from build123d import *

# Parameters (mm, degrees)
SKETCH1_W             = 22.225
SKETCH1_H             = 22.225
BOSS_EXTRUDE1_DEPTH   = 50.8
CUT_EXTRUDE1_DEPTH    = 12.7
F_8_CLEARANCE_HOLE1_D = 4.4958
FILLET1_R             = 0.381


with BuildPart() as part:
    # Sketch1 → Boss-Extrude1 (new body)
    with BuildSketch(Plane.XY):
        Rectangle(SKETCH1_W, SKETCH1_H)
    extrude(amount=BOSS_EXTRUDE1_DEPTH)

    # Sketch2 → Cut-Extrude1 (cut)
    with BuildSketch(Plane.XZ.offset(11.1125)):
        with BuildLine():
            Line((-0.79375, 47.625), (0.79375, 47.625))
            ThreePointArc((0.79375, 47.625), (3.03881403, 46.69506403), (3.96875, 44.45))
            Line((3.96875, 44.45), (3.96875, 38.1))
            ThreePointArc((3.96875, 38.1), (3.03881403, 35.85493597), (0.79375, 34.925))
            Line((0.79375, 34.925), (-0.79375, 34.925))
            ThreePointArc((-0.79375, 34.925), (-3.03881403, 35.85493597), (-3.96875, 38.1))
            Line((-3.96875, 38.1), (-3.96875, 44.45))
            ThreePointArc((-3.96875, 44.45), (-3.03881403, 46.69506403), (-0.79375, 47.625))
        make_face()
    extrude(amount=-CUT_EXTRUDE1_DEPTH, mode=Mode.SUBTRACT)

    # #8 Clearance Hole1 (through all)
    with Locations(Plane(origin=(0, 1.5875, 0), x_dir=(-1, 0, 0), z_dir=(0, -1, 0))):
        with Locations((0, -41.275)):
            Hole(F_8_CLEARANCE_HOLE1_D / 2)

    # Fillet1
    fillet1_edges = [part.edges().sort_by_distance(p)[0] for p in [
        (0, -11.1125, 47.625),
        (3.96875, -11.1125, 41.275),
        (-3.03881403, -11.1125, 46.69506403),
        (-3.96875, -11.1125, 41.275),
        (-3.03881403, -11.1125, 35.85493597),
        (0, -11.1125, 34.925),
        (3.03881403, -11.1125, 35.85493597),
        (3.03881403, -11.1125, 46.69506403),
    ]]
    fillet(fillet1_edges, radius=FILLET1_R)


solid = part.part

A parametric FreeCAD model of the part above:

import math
import FreeCAD as App
import Part
import Sketcher
from FreeCAD import Vector
Q = App.Units.Quantity


def edges_at(feature, points):
    """Names of the edges that pass closest to the given points."""
    edges = feature.Shape.Edges
    near = lambda p: min(range(len(edges)), key=lambda i: edges[i].distToShape(Part.Vertex(*p))[0])
    return sorted({f"Edge{near(p) + 1}" for p in points})

doc = App.newDocument("Part")
params = doc.addObject("Spreadsheet::Sheet", "Params")
for row, (alias, value) in enumerate([
    ("sketch1_width", "0.875 in"),
    ("pad1_length", "2 in"),
    ("sketch2_radius", "0.125 in"),
    ("sketch2_height", "0.25 in"),
    ("sketch2_width", "0.0625 in"),
    ("pocket1_length", "0.5 in"),
    ("sketch3_diameter", "0.177 in"),
    ("hole_diameter", "0.177 in"),
    ("fillet_radius", "0.015 in"),
], start=1):
    params.set(f"A{row}", alias)
    params.set(f"B{row}", "=" + value)
    params.setAlias(f"B{row}", alias)

body = doc.addObject("PartDesign::Body", "Body")

# Sketch on XY plane
sketch1 = body.newObject("Sketcher::SketchObject", "Sketch")
sketch1.AttachmentSupport = (doc.getObject("XY_Plane"), [""])
sketch1.MapMode = "FlatFace"
sketch1.addGeometry(Part.LineSegment(Vector(-11.1125, 11.1125, 0), Vector(-11.1125, -11.1125, 0)), False)
sketch1.addGeometry(Part.LineSegment(Vector(-11.1125, -11.1125, 0), Vector(11.1125, -11.1125, 0)), False)
sketch1.addGeometry(Part.LineSegment(Vector(11.1125, -11.1125, 0), Vector(11.1125, 11.1125, 0)), False)
sketch1.addGeometry(Part.LineSegment(Vector(11.1125, 11.1125, 0), Vector(-11.1125, 11.1125, 0)), False)
sketch1.addConstraint(Sketcher.Constraint("Coincident", 0, 2, 1, 1))
sketch1.addConstraint(Sketcher.Constraint("Coincident", 1, 2, 2, 1))
sketch1.addConstraint(Sketcher.Constraint("Coincident", 2, 2, 3, 1))
sketch1.addConstraint(Sketcher.Constraint("Coincident", 3, 2, 0, 1))
sketch1.addConstraint(Sketcher.Constraint("Vertical", 0))
sketch1.addConstraint(Sketcher.Constraint("Horizontal", 1))
sketch1.addConstraint(Sketcher.Constraint("Vertical", 2))
sketch1.addConstraint(Sketcher.Constraint("Horizontal", 3))
sketch1.addConstraint(Sketcher.Constraint("Symmetric", 0, 2, 2, 2, -1, 1))
sketch1.addConstraint(Sketcher.Constraint("Equal", 3, 0))
sketch1.addConstraint(Sketcher.Constraint("DistanceX", 1, 1, 1, 2, Q("0.875 in")))
sketch1.setExpression("Constraints[10]", "Params.sketch1_width")
pad1 = body.newObject("PartDesign::Pad", "Pad")
pad1.Profile = sketch1
pad1.setExpression("Length", "Params.pad1_length")

# Sketch on XZ plane
sketch2 = body.newObject("Sketcher::SketchObject", "Sketch001")
sketch2.AttachmentSupport = (doc.getObject("XZ_Plane"), [""])
sketch2.MapMode = "FlatFace"
sketch2.AttachmentOffset = App.Placement(Vector(0, 0, 0.4375 * 25.4), App.Rotation())
sketch2.addGeometry(Part.LineSegment(Vector(0.79375, 47.625, 0), Vector(-0.79375, 47.625, 0)), False)
sketch2.addGeometry(Part.ArcOfCircle(Part.Circle(Vector(-0.79375, 44.45, 0), Vector(0, 0, 1), 3.175), math.radians(90), math.radians(180)), False)
sketch2.addGeometry(Part.LineSegment(Vector(-3.96875, 44.45, 0), Vector(-3.96875, 38.1, 0)), False)
sketch2.addGeometry(Part.ArcOfCircle(Part.Circle(Vector(-0.79375, 38.1, 0), Vector(0, 0, 1), 3.175), math.radians(-180), math.radians(-90)), False)
sketch2.addGeometry(Part.LineSegment(Vector(-0.79375, 34.925, 0), Vector(0.79375, 34.925, 0)), False)
sketch2.addGeometry(Part.ArcOfCircle(Part.Circle(Vector(0.79375, 38.1, 0), Vector(0, 0, 1), 3.175), math.radians(-90), math.radians(0)), False)
sketch2.addGeometry(Part.LineSegment(Vector(3.96875, 38.1, 0), Vector(3.96875, 44.45, 0)), False)
sketch2.addGeometry(Part.ArcOfCircle(Part.Circle(Vector(0.79375, 44.45, 0), Vector(0, 0, 1), 3.175), math.radians(0), math.radians(90)), False)
sketch2.addConstraint(Sketcher.Constraint("Tangent", 0, 2, 1, 1))
sketch2.addConstraint(Sketcher.Constraint("Tangent", 1, 2, 2, 1))
sketch2.addConstraint(Sketcher.Constraint("Tangent", 2, 2, 3, 1))
sketch2.addConstraint(Sketcher.Constraint("Tangent", 3, 2, 4, 1))
sketch2.addConstraint(Sketcher.Constraint("Tangent", 4, 2, 5, 1))
sketch2.addConstraint(Sketcher.Constraint("Tangent", 5, 2, 6, 1))
sketch2.addConstraint(Sketcher.Constraint("Tangent", 6, 2, 7, 1))
sketch2.addConstraint(Sketcher.Constraint("Tangent", 7, 2, 0, 1))
sketch2.addConstraint(Sketcher.Constraint("Horizontal", 0))
sketch2.addConstraint(Sketcher.Constraint("Vertical", 2))
sketch2.addConstraint(Sketcher.Constraint("Horizontal", 4))
sketch2.addConstraint(Sketcher.Constraint("Vertical", 6))
sketch2.addConstraint(Sketcher.Constraint("Equal", 1, 3))
sketch2.addConstraint(Sketcher.Constraint("Equal", 3, 5))
sketch2.addConstraint(Sketcher.Constraint("Equal", 5, 7))
sketch2.addConstraint(Sketcher.Constraint("Radius", 1, Q("0.125 in")))
sketch2.addConstraint(Sketcher.Constraint("DistanceY", 2, 2, 2, 1, Q("0.25 in")))
sketch2.addConstraint(Sketcher.Constraint("DistanceY", -1, 1, 3, 3, Q("1.5 in")))
sketch2.addConstraint(Sketcher.Constraint("DistanceX", 0, 2, 0, 1, Q("0.0625 in")))
sketch2.addConstraint(Sketcher.Constraint("DistanceX", 1, 3, -1, 1, Q("0.03125 in")))
sketch2.setExpression("Constraints[15]", "Params.sketch2_radius")
sketch2.setExpression("Constraints[16]", "Params.sketch2_height")
sketch2.setExpression("Constraints[18]", "Params.sketch2_width")
pocket1 = body.newObject("PartDesign::Pocket", "Pocket")
pocket1.Profile = sketch2
pocket1.setExpression("Length", "Params.pocket1_length")

# Sketch on XZ plane
sketch3 = body.newObject("Sketcher::SketchObject", "Sketch002")
sketch3.AttachmentSupport = (doc.getObject("XZ_Plane"), [""])
sketch3.MapMode = "FlatFace"
sketch3.AttachmentOffset = App.Placement(Vector(0, 0, -0.0625 * 25.4), App.Rotation())
sketch3.addGeometry(Part.Circle(Vector(0, 41.275, 0), Vector(0, 0, 1), 2.2479), False)
sketch3.addConstraint(Sketcher.Constraint("PointOnObject", 0, 3, -2))
sketch3.addConstraint(Sketcher.Constraint("Diameter", 0, Q("0.177 in")))
sketch3.addConstraint(Sketcher.Constraint("DistanceY", -1, 1, 0, 3, Q("1.625 in")))
sketch3.setExpression("Constraints[1]", "Params.sketch3_diameter")
doc.recompute()
hole = body.newObject("PartDesign::Hole", "Hole")
hole.Profile = sketch3
hole.ThreadType = "None"
hole.setExpression("Diameter", "Params.hole_diameter")
hole.DepthType = "ThroughAll"
doc.recompute()

fillet = body.newObject("PartDesign::Fillet", "Fillet")
fillet.Base = (hole, edges_at(hole, [
    (0, -11.113, 47.625),
    (3.969, -11.113, 41.275),
    (-3.039, -11.113, 46.695),
    (-3.969, -11.113, 41.275),
    (-3.039, -11.113, 35.855),
    (0, -11.113, 34.925),
    (3.039, -11.113, 35.855),
    (3.039, -11.113, 46.695),
]))
fillet.setExpression("Radius", "Params.fillet_radius")

doc.recompute()
